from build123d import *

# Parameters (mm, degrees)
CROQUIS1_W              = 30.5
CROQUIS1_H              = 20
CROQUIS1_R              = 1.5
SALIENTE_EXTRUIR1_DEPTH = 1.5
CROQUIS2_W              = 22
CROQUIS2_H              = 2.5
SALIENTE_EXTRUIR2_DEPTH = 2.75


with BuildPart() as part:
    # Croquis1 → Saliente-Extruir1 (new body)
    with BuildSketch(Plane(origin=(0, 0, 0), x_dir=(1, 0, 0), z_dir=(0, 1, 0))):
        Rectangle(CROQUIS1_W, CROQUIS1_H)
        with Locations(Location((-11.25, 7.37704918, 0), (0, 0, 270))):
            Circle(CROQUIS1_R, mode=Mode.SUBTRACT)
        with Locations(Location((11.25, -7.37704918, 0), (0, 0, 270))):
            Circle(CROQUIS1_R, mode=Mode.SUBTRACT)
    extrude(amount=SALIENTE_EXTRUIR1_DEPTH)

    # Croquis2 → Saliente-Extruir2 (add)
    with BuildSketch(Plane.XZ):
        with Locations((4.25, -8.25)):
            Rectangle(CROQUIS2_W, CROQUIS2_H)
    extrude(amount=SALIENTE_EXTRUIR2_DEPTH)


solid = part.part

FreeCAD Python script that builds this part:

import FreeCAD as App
import Part
import Sketcher
Q = App.Units.Quantity

doc = App.newDocument("Part")
params = doc.addObject("Spreadsheet::Sheet", "Params")
for row, (alias, value) in enumerate([
    ("sketch1_diameter", "3 mm"),
    ("sketch1_height", "20 mm"),
    ("sketch1_width", "30.5 mm"),
    ("pad1_length", "1.5 mm"),
    ("sketch2_width", "22 mm"),
    ("sketch2_height", "2.5 mm"),
    ("pad2_length", "2.75 mm"),
], start=1):
    params.set(f"A{row}", alias)
    params.set(f"B{row}", "=" + value)
    params.setAlias(f"B{row}", alias)

body = doc.addObject("PartDesign::Body", "Body")

# Sketch on XZ plane
sketch1 = doc.addObject("Sketcher::SketchObject", "Sketch")
body.addObject(sketch1)
sketch1.AttachmentSupport = (doc.XZ_Plane, [""])
sketch1.MapMode = "FlatFace"
sketch1.addGeometry([
    Part.LineSegment(App.Vector(-15.2, -10, 0), App.Vector(-15.2, 10, 0)),  # 0
    Part.LineSegment(App.Vector(-15.2, 10, 0), App.Vector(15.2, 10, 0)),  # 1
    Part.LineSegment(App.Vector(15.2, 10, 0), App.Vector(15.2, -10, 0)),  # 2
    Part.LineSegment(App.Vector(15.2, -10, 0), App.Vector(-15.2, -10, 0)),  # 3
    Part.Circle(App.Vector(11.2, 7.4, 0), App.Vector(0, 0, 1), 1.5),  # 4
    Part.Circle(App.Vector(-11.2, -7.4, 0), App.Vector(0, 0, 1), 1.5),  # 5
], False)
sketch1.addConstraint([
    Sketcher.Constraint("Coincident", 0, 2, 1, 1),
    Sketcher.Constraint("Coincident", 1, 2, 2, 1),
    Sketcher.Constraint("Coincident", 2, 2, 3, 1),
    Sketcher.Constraint("Coincident", 3, 2, 0, 1),
    Sketcher.Constraint("Vertical", 0),
    Sketcher.Constraint("Horizontal", 1),
    Sketcher.Constraint("Vertical", 2),
    Sketcher.Constraint("Horizontal", 3),
    Sketcher.Constraint("Equal", 4, 5),
    Sketcher.Constraint("Symmetric", 4, 3, 5, 3, -1, 1),
    Sketcher.Constraint("Symmetric", 0, 2, 2, 2, -1, 1),
    Sketcher.Constraint("Diameter", 4, Q("3 mm")),
    Sketcher.Constraint("DistanceY", 0, 1, 0, 2, Q("20 mm")),
    Sketcher.Constraint("DistanceX", 1, 1, 1, 2, Q("30.5 mm")),
    Sketcher.Constraint("DistanceX", 0, 2, 5, 3, Q("4 mm")),
    Sketcher.Constraint("DistanceY", 5, 3, 4, 3, Q("14.754098 mm")),
])
sketch1.setExpression("Constraints[11]", "Params.sketch1_diameter")
sketch1.setExpression("Constraints[12]", "Params.sketch1_height")
sketch1.setExpression("Constraints[13]", "Params.sketch1_width")
pad1 = doc.addObject("PartDesign::Pad", "Pad")
body.addObject(pad1)
pad1.Profile = sketch1
pad1.setExpression("Length", "Params.pad1_length")
pad1.Reversed = True

# Sketch on XZ plane
sketch2 = doc.addObject("Sketcher::SketchObject", "Sketch001")
body.addObject(sketch2)
sketch2.AttachmentSupport = (doc.XZ_Plane, [""])
sketch2.MapMode = "FlatFace"
sketch2.addGeometry([
    Part.LineSegment(App.Vector(-6.8, -7, 0), App.Vector(-6.8, -9.5, 0)),
    Part.LineSegment(App.Vector(-6.8, -9.5, 0), App.Vector(15.2, -9.5, 0)),
    Part.LineSegment(App.Vector(15.2, -9.5, 0), App.Vector(15.2, -7, 0)),
    Part.LineSegment(App.Vector(15.2, -7, 0), App.Vector(-6.8, -7, 0)),
], False)
sketch2.addConstraint([
    Sketcher.Constraint("Coincident", 0, 2, 1, 1),
    Sketcher.Constraint("Coincident", 1, 2, 2, 1),
    Sketcher.Constraint("Coincident", 2, 2, 3, 1),
    Sketcher.Constraint("Coincident", 3, 2, 0, 1),
    Sketcher.Constraint("Vertical", 0),
    Sketcher.Constraint("Horizontal", 1),
    Sketcher.Constraint("Vertical", 2),
    Sketcher.Constraint("Horizontal", 3),
    Sketcher.Constraint("DistanceX", 1, 1, 1, 2, Q("22 mm")),
    Sketcher.Constraint("DistanceY", 0, 2, 0, 1, Q("2.5 mm")),
    Sketcher.Constraint("DistanceY", 2, 2, -1, 1, Q("7 mm")),
    Sketcher.Constraint("DistanceX", 0, 2, -1, 1, Q("6.75 mm")),
])
sketch2.setExpression("Constraints[8]", "Params.sketch2_width")
sketch2.setExpression("Constraints[9]", "Params.sketch2_height")
pad2 = doc.addObject("PartDesign::Pad", "Pad001")
body.addObject(pad2)
pad2.Profile = sketch2
pad2.setExpression("Length", "Params.pad2_length")

doc.recompute()
